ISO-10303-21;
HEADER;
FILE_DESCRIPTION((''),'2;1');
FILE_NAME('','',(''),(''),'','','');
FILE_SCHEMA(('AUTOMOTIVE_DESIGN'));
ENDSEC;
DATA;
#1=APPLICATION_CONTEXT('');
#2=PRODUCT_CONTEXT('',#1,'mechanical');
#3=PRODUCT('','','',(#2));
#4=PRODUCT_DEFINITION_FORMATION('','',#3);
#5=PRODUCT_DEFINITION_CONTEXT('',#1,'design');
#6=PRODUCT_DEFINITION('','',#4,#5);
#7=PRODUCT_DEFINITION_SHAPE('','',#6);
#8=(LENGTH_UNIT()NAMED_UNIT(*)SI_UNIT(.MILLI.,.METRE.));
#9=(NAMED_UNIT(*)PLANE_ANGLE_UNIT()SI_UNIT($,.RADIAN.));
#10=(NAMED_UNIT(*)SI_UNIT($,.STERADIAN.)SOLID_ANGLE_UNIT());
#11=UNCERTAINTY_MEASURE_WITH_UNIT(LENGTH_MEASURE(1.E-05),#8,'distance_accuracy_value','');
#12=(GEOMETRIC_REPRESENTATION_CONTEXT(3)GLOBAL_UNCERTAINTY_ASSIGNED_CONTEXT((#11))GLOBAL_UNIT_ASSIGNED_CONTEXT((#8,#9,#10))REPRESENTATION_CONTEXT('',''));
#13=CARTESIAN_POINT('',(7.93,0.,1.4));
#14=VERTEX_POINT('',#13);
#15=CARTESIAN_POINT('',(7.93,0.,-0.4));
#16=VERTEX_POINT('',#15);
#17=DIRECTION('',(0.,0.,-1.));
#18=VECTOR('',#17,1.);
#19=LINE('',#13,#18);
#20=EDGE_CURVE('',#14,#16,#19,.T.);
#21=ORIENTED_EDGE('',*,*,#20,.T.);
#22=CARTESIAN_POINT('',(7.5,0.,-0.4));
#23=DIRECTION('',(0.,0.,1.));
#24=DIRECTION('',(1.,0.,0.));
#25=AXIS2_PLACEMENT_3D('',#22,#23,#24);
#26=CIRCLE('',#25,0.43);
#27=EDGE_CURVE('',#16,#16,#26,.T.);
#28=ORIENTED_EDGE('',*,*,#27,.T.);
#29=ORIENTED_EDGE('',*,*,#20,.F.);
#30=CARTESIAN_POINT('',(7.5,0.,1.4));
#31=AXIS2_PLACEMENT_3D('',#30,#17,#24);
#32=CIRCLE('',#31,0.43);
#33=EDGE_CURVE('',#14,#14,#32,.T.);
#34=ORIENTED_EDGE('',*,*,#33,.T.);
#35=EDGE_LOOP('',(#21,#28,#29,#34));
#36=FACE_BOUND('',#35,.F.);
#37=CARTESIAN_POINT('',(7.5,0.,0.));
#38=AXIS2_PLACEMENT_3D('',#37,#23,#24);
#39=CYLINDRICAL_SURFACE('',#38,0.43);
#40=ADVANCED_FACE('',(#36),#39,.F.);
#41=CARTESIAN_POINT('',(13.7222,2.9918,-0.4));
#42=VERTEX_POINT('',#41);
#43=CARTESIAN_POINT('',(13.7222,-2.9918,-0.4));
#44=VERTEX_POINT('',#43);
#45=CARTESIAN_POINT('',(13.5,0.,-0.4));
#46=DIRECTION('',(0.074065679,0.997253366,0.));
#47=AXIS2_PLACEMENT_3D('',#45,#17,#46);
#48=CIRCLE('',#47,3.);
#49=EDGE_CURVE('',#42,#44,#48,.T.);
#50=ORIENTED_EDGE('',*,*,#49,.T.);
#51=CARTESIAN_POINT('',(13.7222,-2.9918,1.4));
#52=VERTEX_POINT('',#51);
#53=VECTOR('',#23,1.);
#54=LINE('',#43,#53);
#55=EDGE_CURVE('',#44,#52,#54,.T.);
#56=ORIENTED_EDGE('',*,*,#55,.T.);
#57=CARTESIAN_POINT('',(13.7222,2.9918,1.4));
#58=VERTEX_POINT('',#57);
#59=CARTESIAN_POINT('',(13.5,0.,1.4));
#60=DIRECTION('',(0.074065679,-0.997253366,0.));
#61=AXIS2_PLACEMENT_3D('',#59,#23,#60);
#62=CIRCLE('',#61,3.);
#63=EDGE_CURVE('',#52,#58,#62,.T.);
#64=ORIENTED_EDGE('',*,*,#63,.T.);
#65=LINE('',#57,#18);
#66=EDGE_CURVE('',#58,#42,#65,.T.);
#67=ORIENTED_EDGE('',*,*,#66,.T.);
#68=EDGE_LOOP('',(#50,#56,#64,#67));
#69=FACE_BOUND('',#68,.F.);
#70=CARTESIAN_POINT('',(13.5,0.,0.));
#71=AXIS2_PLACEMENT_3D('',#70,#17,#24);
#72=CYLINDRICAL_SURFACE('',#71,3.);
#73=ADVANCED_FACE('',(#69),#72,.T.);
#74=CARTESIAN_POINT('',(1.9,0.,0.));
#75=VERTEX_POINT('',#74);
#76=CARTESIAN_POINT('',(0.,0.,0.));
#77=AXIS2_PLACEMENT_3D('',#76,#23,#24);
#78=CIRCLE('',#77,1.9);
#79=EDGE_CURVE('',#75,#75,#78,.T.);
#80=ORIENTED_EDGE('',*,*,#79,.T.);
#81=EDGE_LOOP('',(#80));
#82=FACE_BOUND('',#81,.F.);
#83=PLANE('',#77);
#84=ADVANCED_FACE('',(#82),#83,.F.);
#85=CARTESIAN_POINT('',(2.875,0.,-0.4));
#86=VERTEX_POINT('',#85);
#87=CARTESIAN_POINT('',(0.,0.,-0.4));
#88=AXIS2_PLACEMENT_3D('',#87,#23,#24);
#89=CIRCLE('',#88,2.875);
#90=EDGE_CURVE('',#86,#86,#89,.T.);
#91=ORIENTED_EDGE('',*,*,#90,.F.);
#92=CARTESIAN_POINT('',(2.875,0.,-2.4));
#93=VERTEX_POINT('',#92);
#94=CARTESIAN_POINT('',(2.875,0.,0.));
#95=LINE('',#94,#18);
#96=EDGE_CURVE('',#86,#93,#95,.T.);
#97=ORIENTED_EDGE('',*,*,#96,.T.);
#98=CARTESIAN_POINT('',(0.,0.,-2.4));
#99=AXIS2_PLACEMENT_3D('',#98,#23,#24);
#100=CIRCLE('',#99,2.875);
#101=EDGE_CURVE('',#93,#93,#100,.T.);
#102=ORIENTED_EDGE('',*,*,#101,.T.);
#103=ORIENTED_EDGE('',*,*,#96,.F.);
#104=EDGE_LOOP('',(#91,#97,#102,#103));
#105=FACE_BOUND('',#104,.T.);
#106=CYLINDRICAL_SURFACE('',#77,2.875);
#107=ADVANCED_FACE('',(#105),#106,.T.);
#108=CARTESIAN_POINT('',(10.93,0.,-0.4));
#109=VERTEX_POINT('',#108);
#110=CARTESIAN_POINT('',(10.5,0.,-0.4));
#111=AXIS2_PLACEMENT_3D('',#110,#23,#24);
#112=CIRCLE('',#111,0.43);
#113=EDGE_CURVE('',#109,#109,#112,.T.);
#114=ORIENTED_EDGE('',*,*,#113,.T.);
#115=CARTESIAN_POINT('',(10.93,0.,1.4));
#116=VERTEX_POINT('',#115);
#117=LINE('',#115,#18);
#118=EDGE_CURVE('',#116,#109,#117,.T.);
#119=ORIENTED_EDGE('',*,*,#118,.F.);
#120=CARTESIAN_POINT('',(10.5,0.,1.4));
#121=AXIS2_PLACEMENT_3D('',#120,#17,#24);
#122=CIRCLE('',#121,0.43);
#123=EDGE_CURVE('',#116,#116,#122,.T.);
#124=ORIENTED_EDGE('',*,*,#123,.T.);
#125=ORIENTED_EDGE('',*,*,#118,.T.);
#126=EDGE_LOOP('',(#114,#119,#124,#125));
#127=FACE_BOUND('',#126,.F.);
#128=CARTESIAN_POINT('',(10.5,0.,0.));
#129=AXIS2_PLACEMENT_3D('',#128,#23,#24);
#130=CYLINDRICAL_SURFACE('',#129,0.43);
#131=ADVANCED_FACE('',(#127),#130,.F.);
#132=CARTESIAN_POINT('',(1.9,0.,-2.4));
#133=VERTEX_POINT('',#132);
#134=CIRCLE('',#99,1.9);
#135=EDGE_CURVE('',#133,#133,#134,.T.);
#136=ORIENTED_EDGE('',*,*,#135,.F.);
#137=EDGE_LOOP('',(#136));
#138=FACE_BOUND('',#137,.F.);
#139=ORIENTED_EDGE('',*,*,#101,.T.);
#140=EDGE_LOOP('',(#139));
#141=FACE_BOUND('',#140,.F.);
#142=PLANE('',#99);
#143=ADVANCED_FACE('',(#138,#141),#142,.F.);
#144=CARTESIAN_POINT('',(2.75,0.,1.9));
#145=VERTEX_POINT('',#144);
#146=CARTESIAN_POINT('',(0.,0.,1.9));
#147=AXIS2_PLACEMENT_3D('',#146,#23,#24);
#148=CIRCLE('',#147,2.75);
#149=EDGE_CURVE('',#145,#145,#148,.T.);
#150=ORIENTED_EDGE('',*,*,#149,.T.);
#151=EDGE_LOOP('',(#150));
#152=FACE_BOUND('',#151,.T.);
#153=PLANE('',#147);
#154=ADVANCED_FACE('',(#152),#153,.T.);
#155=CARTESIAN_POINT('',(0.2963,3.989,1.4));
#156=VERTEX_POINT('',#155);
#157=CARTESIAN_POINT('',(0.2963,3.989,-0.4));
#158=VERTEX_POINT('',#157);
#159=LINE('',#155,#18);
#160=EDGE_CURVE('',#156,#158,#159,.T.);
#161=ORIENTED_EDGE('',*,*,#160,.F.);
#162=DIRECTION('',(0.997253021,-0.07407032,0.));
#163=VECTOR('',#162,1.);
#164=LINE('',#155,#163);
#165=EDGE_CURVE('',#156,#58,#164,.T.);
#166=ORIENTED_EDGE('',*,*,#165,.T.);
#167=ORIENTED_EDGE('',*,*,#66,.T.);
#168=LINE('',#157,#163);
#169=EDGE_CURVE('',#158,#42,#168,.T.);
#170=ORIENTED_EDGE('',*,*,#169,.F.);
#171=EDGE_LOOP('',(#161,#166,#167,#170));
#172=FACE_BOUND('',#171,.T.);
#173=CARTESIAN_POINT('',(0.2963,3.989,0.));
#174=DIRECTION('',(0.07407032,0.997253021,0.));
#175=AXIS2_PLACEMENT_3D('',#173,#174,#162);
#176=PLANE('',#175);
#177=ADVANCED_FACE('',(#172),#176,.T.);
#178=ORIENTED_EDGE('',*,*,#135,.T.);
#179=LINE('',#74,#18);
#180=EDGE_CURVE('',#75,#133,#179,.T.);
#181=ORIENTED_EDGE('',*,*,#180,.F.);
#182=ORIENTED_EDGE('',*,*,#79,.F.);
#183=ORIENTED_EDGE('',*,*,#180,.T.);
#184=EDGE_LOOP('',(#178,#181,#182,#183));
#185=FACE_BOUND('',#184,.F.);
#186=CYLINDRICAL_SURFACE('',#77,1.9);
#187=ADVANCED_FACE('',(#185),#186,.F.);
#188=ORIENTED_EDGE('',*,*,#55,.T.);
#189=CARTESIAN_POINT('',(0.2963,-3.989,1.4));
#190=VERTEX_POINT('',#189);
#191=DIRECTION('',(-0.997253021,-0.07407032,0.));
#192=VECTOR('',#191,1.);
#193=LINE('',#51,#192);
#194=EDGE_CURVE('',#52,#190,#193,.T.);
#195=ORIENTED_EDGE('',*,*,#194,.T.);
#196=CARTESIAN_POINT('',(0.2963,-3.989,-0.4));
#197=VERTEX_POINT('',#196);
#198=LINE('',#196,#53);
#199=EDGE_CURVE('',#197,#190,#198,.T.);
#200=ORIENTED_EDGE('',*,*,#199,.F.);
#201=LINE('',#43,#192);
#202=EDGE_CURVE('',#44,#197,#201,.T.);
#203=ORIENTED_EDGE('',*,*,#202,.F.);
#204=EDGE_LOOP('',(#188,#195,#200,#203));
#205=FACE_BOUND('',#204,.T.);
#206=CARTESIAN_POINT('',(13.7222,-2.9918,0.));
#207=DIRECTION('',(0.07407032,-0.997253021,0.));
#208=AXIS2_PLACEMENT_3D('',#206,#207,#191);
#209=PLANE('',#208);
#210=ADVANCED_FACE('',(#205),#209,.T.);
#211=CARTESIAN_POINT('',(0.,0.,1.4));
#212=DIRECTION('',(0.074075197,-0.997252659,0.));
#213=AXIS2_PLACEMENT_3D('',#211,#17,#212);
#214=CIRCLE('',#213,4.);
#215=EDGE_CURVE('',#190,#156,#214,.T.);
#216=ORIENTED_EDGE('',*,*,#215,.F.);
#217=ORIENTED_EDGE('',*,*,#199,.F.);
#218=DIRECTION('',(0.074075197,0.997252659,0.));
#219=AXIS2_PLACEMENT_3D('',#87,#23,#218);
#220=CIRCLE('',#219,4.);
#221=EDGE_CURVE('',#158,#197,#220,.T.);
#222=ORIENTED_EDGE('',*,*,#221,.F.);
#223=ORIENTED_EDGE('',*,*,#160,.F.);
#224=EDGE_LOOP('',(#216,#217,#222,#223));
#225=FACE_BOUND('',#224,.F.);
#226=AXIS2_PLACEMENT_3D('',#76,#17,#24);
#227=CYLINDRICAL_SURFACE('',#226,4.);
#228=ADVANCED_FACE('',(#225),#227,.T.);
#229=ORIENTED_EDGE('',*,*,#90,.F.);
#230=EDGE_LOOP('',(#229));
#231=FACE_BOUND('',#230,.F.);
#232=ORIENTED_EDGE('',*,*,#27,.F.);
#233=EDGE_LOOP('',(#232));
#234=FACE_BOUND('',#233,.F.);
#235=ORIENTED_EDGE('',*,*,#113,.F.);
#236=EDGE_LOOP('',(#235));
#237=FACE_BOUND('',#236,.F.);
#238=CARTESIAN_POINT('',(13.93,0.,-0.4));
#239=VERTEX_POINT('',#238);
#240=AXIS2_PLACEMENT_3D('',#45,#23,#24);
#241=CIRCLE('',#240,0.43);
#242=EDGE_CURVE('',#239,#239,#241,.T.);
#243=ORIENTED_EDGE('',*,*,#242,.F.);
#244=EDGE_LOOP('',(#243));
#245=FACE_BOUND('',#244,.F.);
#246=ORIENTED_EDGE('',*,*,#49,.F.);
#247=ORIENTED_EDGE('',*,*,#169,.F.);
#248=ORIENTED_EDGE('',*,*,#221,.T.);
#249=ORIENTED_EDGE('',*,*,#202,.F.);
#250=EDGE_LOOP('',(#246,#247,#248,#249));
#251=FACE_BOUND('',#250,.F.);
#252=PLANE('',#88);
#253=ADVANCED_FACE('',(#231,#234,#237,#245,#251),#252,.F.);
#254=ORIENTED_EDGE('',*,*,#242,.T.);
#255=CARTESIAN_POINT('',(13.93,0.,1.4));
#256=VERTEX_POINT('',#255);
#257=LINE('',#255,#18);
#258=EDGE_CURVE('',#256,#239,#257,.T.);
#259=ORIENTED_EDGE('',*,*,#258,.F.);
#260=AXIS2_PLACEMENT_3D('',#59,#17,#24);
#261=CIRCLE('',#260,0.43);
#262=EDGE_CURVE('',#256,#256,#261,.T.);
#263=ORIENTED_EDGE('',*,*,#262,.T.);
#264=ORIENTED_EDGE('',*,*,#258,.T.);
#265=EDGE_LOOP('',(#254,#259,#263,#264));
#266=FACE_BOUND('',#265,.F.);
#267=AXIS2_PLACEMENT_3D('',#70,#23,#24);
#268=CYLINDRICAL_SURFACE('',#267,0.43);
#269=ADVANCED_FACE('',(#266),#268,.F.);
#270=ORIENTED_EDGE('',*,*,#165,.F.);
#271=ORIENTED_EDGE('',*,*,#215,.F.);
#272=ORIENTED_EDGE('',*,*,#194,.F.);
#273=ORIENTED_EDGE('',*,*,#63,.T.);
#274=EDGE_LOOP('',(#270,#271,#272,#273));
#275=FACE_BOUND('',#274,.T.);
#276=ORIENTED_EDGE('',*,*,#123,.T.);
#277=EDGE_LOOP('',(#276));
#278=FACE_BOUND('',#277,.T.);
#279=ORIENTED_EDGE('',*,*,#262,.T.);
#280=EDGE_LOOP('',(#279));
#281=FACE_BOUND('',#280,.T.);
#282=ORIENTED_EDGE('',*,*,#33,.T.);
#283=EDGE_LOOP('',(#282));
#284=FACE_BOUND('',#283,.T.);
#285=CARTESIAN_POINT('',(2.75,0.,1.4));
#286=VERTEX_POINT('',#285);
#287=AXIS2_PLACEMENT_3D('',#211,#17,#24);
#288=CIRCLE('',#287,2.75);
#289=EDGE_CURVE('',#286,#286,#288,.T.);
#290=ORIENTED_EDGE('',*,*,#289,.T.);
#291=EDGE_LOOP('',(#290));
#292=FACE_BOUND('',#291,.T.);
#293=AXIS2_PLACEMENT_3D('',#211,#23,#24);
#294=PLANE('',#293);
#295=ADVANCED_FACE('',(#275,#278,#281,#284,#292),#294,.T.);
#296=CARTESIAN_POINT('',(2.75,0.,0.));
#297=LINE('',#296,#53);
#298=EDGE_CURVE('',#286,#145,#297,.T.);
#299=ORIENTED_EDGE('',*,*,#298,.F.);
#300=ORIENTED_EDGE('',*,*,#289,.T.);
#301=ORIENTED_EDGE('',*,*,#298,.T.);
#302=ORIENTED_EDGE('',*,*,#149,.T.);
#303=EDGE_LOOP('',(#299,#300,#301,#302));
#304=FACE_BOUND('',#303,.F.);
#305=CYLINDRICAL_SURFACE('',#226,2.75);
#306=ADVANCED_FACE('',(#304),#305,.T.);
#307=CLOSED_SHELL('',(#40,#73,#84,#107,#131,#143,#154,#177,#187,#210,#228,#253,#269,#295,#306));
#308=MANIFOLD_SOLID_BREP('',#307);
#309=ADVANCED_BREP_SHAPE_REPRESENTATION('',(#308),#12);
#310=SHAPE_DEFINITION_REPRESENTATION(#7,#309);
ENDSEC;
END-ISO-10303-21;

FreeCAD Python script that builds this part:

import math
import FreeCAD as App
import Part
import Sketcher

V = App.Vector
Q = App.Units.Quantity

doc = App.newDocument("Part")
params = doc.addObject("Spreadsheet::Sheet", "Params")
for row, (alias, value) in enumerate([
    ("sketch1_diameter", "5.75 mm"),
    ("pad1_length", "2.4 mm"),
    ("sketch2_diameter", "5.5 mm"),
    ("pad2_length", "1.9 mm"),
    ("sketch3_radius", "4 mm"),
    ("sketch3_radius2", "3 mm"),
    ("pad3_length", "1.4 mm"),
    ("pad3_length2", "0.4 mm"),
    ("sketch4_diameter", "0.86 mm"),
    ("sketch5_diameter", "3.8 mm"),
    ("linearpattern_pitch", "3 mm"),
], start=1):
    params.set(f"A{row}", alias)
    params.set(f"B{row}", "=" + value)
    params.setAlias(f"B{row}", alias)

body = doc.addObject("PartDesign::Body", "Body")

sketch1 = doc.addObject("Sketcher::SketchObject", "Sketch")
body.addObject(sketch1)
sketch1.AttachmentSupport = (doc.XY_Plane, [""])
sketch1.MapMode = "FlatFace"
sketch1.addGeometry(Part.Circle(V(0, 0, 0), V(0, 0, 1), 2.9), False)
sketch1.addConstraint([
    Sketcher.Constraint("Coincident", 0, 3, -1, 1),
    Sketcher.Constraint("Diameter", 0, Q("5.75 mm")),
])
sketch1.setExpression("Constraints[1]", "Params.sketch1_diameter")
pad1 = doc.addObject("PartDesign::Pad", "Pad")
body.addObject(pad1)
pad1.Profile = sketch1
pad1.setExpression("Length", "Params.pad1_length")
pad1.Reversed = True

sketch2 = doc.addObject("Sketcher::SketchObject", "Sketch001")
body.addObject(sketch2)
sketch2.AttachmentSupport = (doc.XY_Plane, [""])
sketch2.MapMode = "FlatFace"
sketch2.addGeometry(Part.Circle(V(0, 0, 0), V(0, 0, 1), 2.8), False)
sketch2.addConstraint([
    Sketcher.Constraint("Coincident", 0, 3, -1, 1),
    Sketcher.Constraint("Diameter", 0, Q("5.5 mm")),
])
sketch2.setExpression("Constraints[1]", "Params.sketch2_diameter")
pad2 = doc.addObject("PartDesign::Pad", "Pad001")
body.addObject(pad2)
pad2.Profile = sketch2
pad2.setExpression("Length", "Params.pad2_length")

sketch3 = doc.addObject("Sketcher::SketchObject", "Sketch002")
body.addObject(sketch3)
sketch3.AttachmentSupport = (doc.XY_Plane, [""])
sketch3.MapMode = "FlatFace"
sketch3.addGeometry([
    Part.ArcOfCircle(Part.Circle(V(0, 0, 0), V(0, 0, 1), 4), math.radians(86), math.radians(274)),
    Part.LineSegment(V(0.3, -4, 0), V(13.7, -3, 0)),
    Part.ArcOfCircle(Part.Circle(V(13.5, 0, 0), V(0, 0, 1), 3), math.radians(-86), math.radians(86)),
    Part.LineSegment(V(13.7, 3, 0), V(0.3, 4, 0)),
], False)
sketch3.addConstraint([
    Sketcher.Constraint("Tangent", 0, 2, 1, 1),
    Sketcher.Constraint("Tangent", 1, 2, 2, 1),
    Sketcher.Constraint("Tangent", 2, 2, 3, 1),
    Sketcher.Constraint("Tangent", 3, 2, 0, 1),
    Sketcher.Constraint("Coincident", 0, 3, -1, 1),
    Sketcher.Constraint("PointOnObject", 2, 3, -1),
    Sketcher.Constraint("Radius", 0, Q("4 mm")),
    Sketcher.Constraint("Radius", 2, Q("3 mm")),
    Sketcher.Constraint("DistanceX", -1, 1, 2, 3, Q("13.5 mm")),
])
sketch3.setExpression("Constraints[6]", "Params.sketch3_radius")
sketch3.setExpression("Constraints[7]", "Params.sketch3_radius2")
pad3 = doc.addObject("PartDesign::Pad", "Pad002")
body.addObject(pad3)
pad3.Profile = sketch3
pad3.Type = "TwoLengths"
pad3.setExpression("Length", "Params.pad3_length")
pad3.setExpression("Length2", "Params.pad3_length2")

sketch4 = doc.addObject("Sketcher::SketchObject", "Sketch003")
body.addObject(sketch4)
sketch4.AttachmentSupport = (doc.XY_Plane, [""])
sketch4.MapMode = "FlatFace"
sketch4.addGeometry(Part.Circle(V(13.5, 0, 0), V(0, 0, 1), 0.43), False)
sketch4.addConstraint([
    Sketcher.Constraint("PointOnObject", 0, 3, -1),
    Sketcher.Constraint("Diameter", 0, Q("0.86 mm")),
    Sketcher.Constraint("DistanceX", -1, 1, 0, 3, Q("13.5 mm")),
])
sketch4.setExpression("Constraints[1]", "Params.sketch4_diameter")
pocket1 = doc.addObject("PartDesign::Pocket", "Pocket")
body.addObject(pocket1)
pocket1.Profile = sketch4
pocket1.Type = "ThroughAll"
pocket1.Midplane = True

sketch5 = doc.addObject("Sketcher::SketchObject", "Sketch004")
body.addObject(sketch5)
sketch5.AttachmentSupport = (doc.XY_Plane, [""])
sketch5.MapMode = "FlatFace"
sketch5.addGeometry(Part.Circle(V(0, 0, 0), V(0, 0, 1), 1.9), False)
sketch5.addConstraint([
    Sketcher.Constraint("Coincident", 0, 3, -1, 1),
    Sketcher.Constraint("Diameter", 0, Q("3.8 mm")),
])
sketch5.setExpression("Constraints[1]", "Params.sketch5_diameter")
pocket2 = doc.addObject("PartDesign::Pocket", "Pocket001")
body.addObject(pocket2)
pocket2.Profile = sketch5
pocket2.Type = "ThroughAll"
doc.recompute()

linearpattern = doc.addObject("PartDesign::LinearPattern", "LinearPattern")
body.addObject(linearpattern)
linearpattern.Originals = [pocket1]
linearpattern.Direction = (doc.X_Axis, [""])
linearpattern.Mode = "offset"
linearpattern.setExpression("Offset", "Params.linearpattern_pitch")
linearpattern.Occurrences = 3
linearpattern.Reversed = True
body.Tip = linearpattern

doc.recompute()
